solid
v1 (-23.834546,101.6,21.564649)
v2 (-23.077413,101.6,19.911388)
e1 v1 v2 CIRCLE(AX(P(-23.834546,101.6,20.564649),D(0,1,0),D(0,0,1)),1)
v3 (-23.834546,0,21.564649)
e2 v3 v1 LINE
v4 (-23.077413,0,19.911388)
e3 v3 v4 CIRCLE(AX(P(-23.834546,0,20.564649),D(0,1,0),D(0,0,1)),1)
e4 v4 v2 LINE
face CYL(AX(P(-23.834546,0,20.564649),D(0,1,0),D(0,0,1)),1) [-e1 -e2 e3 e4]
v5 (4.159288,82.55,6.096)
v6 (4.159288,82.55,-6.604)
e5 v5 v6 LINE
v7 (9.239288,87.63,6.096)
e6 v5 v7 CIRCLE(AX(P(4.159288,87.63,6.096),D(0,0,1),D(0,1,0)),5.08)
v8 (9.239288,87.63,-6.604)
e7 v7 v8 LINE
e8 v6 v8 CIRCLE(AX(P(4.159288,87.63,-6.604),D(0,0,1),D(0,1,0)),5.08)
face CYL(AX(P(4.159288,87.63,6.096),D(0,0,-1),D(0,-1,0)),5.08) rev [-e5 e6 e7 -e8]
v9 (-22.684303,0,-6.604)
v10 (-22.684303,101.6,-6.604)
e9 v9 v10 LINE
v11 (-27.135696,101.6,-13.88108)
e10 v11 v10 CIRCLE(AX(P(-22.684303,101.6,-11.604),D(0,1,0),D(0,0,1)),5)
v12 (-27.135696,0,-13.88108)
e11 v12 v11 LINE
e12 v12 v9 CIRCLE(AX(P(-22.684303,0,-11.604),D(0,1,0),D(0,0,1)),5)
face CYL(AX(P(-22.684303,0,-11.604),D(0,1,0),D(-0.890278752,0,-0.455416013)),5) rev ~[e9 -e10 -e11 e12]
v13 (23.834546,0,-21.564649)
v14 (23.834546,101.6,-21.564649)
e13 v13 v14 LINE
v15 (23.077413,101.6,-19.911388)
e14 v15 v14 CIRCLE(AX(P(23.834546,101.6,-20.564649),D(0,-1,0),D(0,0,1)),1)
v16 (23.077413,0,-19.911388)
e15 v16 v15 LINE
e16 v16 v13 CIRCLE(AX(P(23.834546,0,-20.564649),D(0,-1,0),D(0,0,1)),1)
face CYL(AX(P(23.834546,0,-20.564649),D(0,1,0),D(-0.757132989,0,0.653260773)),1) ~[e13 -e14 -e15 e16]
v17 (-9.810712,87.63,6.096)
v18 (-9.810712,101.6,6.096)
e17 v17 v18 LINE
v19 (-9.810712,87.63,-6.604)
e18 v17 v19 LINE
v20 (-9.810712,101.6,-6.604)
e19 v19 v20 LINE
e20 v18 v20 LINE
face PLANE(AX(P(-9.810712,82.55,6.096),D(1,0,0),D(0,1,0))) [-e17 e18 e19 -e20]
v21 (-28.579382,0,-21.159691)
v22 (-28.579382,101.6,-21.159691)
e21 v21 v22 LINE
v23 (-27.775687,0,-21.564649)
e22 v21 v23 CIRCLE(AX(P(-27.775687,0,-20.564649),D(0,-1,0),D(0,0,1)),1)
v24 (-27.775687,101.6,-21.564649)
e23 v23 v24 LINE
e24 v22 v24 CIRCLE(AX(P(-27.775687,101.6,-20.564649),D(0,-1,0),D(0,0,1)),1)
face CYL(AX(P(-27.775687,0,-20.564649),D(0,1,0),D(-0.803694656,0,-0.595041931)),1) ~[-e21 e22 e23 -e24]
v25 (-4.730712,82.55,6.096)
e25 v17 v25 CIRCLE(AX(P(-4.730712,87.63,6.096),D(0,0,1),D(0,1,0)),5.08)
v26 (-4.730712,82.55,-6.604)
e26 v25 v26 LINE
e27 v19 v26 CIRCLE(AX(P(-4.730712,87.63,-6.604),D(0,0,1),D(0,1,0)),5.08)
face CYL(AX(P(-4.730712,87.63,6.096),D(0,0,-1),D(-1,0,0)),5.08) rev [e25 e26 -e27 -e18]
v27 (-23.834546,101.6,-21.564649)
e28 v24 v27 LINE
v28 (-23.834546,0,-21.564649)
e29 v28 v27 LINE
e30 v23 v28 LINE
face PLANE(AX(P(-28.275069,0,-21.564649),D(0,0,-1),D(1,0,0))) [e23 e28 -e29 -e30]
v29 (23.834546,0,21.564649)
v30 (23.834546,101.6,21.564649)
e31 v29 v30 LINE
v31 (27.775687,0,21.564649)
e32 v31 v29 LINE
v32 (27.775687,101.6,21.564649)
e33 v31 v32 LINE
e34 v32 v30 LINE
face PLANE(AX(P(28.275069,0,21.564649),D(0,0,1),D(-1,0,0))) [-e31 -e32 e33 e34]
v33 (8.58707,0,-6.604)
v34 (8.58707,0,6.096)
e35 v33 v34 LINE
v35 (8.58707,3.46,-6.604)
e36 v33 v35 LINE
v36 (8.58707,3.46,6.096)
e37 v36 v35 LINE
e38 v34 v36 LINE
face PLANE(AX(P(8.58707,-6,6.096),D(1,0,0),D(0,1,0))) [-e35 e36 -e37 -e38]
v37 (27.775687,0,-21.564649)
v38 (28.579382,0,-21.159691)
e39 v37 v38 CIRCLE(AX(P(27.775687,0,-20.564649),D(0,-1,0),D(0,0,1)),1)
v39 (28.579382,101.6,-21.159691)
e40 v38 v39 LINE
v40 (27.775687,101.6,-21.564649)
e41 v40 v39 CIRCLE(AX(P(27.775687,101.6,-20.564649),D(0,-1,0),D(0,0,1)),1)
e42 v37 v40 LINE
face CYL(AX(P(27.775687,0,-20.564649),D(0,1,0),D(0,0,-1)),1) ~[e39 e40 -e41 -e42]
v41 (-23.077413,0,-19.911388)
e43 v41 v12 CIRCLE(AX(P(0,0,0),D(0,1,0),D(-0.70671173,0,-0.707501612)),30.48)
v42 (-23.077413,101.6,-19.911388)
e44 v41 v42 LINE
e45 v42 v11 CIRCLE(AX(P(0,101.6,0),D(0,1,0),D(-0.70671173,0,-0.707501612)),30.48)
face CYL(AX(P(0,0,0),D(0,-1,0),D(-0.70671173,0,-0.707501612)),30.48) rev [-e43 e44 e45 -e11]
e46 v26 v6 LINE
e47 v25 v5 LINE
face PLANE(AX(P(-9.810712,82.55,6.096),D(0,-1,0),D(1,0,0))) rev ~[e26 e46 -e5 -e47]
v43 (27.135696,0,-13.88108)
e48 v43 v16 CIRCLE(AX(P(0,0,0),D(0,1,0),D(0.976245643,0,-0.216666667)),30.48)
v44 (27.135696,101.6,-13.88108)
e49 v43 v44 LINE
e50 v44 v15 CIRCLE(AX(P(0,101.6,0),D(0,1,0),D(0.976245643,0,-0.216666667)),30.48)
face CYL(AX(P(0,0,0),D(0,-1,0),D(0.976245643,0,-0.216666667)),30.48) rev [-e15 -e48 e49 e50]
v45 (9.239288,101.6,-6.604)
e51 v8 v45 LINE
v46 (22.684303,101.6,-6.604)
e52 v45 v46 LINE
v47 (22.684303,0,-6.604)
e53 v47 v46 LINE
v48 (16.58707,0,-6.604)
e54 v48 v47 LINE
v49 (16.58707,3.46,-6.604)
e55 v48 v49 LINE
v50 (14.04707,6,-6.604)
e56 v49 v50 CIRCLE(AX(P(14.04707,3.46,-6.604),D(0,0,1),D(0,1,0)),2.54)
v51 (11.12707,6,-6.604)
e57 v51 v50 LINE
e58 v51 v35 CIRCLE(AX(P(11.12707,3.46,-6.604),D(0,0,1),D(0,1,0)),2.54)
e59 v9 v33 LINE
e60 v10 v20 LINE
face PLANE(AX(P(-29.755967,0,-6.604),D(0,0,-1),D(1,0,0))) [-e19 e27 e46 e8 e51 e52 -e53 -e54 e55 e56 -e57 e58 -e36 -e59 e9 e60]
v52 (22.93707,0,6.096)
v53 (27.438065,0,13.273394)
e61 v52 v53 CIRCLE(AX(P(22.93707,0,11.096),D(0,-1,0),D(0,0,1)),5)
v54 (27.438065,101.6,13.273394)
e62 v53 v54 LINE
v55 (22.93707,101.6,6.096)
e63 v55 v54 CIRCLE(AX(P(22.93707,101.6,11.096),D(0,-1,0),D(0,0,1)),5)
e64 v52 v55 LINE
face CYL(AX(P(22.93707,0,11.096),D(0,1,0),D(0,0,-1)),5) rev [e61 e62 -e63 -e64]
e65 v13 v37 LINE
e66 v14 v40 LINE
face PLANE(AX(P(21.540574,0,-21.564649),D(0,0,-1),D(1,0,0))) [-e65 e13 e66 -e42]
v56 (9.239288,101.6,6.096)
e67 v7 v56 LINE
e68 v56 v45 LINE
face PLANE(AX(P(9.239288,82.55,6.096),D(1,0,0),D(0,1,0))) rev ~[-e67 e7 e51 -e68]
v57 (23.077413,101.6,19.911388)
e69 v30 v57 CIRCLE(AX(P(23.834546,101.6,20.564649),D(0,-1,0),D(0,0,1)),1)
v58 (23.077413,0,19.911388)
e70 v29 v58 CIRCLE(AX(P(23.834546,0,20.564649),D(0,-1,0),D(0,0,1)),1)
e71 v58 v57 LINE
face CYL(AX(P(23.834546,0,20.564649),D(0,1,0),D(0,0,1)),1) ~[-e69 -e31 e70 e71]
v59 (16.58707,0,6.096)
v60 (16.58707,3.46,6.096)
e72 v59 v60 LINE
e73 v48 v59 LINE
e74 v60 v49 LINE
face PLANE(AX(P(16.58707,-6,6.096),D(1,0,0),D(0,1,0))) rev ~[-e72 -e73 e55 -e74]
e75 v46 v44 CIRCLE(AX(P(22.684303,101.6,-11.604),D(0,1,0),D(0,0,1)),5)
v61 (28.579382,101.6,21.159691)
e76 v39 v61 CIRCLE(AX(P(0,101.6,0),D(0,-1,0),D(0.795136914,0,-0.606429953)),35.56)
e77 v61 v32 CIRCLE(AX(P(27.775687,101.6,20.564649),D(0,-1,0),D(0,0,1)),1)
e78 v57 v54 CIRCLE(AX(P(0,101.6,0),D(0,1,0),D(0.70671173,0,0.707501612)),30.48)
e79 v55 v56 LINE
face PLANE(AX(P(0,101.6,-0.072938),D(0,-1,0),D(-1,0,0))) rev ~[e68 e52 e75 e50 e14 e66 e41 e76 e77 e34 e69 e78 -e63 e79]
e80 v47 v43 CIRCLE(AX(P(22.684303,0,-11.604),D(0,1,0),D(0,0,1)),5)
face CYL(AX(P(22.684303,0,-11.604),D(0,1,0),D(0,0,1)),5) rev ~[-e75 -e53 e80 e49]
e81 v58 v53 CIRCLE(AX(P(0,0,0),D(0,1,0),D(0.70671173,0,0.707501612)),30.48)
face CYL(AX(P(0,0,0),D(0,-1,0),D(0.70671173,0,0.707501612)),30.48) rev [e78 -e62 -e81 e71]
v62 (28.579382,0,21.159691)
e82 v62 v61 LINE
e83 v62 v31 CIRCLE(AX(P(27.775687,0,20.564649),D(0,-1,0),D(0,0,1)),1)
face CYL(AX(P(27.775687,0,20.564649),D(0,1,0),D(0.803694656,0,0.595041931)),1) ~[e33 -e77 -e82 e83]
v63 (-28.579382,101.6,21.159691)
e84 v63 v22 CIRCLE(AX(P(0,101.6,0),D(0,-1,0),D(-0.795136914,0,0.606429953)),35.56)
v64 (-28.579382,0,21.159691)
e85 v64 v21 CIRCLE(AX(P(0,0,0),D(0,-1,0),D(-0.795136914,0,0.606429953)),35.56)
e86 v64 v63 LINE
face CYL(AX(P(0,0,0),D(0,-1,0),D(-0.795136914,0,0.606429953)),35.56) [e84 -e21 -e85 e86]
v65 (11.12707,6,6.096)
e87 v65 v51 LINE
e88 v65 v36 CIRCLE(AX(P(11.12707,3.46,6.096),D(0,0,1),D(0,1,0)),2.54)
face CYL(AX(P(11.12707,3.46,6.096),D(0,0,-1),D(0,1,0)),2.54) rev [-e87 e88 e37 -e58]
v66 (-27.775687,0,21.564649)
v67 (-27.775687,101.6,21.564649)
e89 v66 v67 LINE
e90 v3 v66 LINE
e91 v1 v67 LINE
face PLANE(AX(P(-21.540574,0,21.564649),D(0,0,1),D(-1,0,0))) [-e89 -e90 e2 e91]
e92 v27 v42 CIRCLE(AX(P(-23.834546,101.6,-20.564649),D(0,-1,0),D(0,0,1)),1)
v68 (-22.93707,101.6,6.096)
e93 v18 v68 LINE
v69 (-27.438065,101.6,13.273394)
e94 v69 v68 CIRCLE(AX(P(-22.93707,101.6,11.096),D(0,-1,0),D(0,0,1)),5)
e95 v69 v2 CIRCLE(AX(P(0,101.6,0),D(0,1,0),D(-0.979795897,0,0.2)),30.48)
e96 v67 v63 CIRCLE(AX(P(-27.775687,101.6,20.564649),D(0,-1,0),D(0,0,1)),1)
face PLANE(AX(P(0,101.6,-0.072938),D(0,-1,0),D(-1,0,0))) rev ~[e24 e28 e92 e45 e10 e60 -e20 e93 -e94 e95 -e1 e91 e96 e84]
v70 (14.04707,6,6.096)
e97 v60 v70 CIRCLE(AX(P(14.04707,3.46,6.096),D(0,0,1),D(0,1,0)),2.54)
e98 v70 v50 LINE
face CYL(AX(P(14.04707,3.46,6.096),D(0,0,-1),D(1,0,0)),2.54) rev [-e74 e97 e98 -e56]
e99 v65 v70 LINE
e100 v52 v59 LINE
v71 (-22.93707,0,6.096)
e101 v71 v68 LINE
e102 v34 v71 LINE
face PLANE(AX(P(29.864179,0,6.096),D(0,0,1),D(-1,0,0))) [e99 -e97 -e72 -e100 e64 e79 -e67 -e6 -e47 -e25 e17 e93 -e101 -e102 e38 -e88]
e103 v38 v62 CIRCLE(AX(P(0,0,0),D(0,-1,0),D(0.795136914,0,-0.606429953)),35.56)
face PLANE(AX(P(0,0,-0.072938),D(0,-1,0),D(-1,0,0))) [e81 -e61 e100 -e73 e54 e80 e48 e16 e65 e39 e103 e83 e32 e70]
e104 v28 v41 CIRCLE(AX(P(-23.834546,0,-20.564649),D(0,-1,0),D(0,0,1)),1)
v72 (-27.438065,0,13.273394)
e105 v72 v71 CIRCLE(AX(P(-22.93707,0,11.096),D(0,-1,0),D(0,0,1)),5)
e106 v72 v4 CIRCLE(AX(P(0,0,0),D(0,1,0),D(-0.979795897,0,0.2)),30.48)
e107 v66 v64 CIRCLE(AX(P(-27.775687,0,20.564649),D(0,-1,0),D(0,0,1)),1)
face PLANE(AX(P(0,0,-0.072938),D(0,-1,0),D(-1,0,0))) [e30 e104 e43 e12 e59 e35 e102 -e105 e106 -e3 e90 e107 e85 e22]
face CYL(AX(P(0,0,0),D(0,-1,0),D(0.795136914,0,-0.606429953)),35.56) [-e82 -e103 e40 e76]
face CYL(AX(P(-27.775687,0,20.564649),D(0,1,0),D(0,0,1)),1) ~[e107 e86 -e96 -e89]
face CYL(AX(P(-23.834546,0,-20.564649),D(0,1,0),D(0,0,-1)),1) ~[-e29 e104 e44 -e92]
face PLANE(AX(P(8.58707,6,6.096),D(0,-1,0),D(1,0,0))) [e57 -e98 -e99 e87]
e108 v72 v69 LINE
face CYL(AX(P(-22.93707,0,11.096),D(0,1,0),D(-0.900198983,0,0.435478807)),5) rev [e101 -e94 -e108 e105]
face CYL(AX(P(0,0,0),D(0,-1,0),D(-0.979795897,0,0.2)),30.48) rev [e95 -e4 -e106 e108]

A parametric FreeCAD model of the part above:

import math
import FreeCAD as App
import Part
import Sketcher
Q = App.Units.Quantity


def edges_at(feature, points):
    """Names of the edges that pass closest to the given points."""
    edges = feature.Shape.Edges
    near = lambda p: min(range(len(edges)), key=lambda i: edges[i].distToShape(Part.Vertex(*p))[0])
    return sorted({f"Edge{near(p) + 1}" for p in points})


def add_polygon(sketch, points):
    """Adds a closed chain of lines whose ends are joined by coincident constraints."""
    first, n = sketch.GeometryCount, len(points)
    for a, b in zip(points, points[1:] + points[:1]):
        sketch.addGeometry(Part.LineSegment(App.Vector(*a, 0), App.Vector(*b, 0)), False)
    for i in range(n):
        sketch.addConstraint(Sketcher.Constraint("Coincident", first + i, 2, first + (i + 1) % n, 1))

doc = App.newDocument("Part")
params = doc.addObject("Spreadsheet::Sheet", "Params")
for row, (alias, value) in enumerate([
    ("sketch1_radius", "1.2 in"),
    ("sketch1_radius2", "1.4 in"),
    ("pad1_length", "4 in"),
    ("fillet_radius", "1 mm"),
    ("fillet2_radius", "5 mm"),
    ("sketch2_diameter", "0.25 in"),
    ("pocket1_length", "0.75 in"),
    ("sketch3_width", "0.75 in"),
    ("pocket2_length", "0.5 in"),
    ("fillet3_radius", "0.2 in"),
    ("pocket3_length", "0.5 in"),
    ("fillet4_radius", "0.1 in"),
], start=1):
    params.set(f"A{row}", alias)
    params.set(f"B{row}", "=" + value)
    params.setAlias(f"B{row}", alias)

body = doc.addObject("PartDesign::Body", "Body")

# Sketch on XZ plane
sketch1 = doc.addObject("Sketcher::SketchObject", "Sketch")
body.addObject(sketch1)
sketch1.AttachmentSupport = (doc.XZ_Plane, [""])
sketch1.MapMode = "FlatFace"
sketch1.addGeometry(Part.LineSegment(App.Vector(-28, 22, 0), App.Vector(-22, 22, 0)), False)
sketch1.addGeometry(Part.ArcOfCircle(Part.Circle(App.Vector(0, 0, 0), App.Vector(0, 0, 1), 30), math.radians(135), math.radians(168)), False)
sketch1.addGeometry(Part.LineSegment(App.Vector(-30, 6, 0), App.Vector(30, 6, 0)), False)
sketch1.addGeometry(Part.ArcOfCircle(Part.Circle(App.Vector(0, 0, 0), App.Vector(0, 0, 1), 30), math.radians(12), math.radians(45)), False)
sketch1.addGeometry(Part.LineSegment(App.Vector(22, 22, 0), App.Vector(28, 22, 0)), False)
sketch1.addGeometry(Part.ArcOfCircle(Part.Circle(App.Vector(0, 0, 0), App.Vector(0, 0, 1), 36), math.radians(-37), math.radians(37)), False)
sketch1.addGeometry(Part.LineSegment(App.Vector(28, -22, 0), App.Vector(22, -22, 0)), False)
sketch1.addGeometry(Part.ArcOfCircle(Part.Circle(App.Vector(0, 0, 0), App.Vector(0, 0, 1), 30), math.radians(-45), math.radians(-13)), False)
sketch1.addGeometry(Part.LineSegment(App.Vector(30, -7, 0), App.Vector(-30, -7, 0)), False)
sketch1.addGeometry(Part.ArcOfCircle(Part.Circle(App.Vector(0, 0, 0), App.Vector(0, 0, 1), 30), math.radians(-167), math.radians(-135)), False)
sketch1.addGeometry(Part.LineSegment(App.Vector(-22, -22, 0), App.Vector(-28, -22, 0)), False)
sketch1.addGeometry(Part.ArcOfCircle(Part.Circle(App.Vector(0, 0, 0), App.Vector(0, 0, 1), 36), math.radians(143), math.radians(217)), False)
sketch1.addConstraint(Sketcher.Constraint("Coincident", 0, 2, 1, 1))
sketch1.addConstraint(Sketcher.Constraint("Coincident", 1, 2, 2, 1))
sketch1.addConstraint(Sketcher.Constraint("Coincident", 2, 2, 3, 1))
sketch1.addConstraint(Sketcher.Constraint("Coincident", 3, 2, 4, 1))
sketch1.addConstraint(Sketcher.Constraint("Coincident", 4, 2, 5, 2))
sketch1.addConstraint(Sketcher.Constraint("Coincident", 5, 1, 6, 1))
sketch1.addConstraint(Sketcher.Constraint("Coincident", 6, 2, 7, 1))
sketch1.addConstraint(Sketcher.Constraint("Coincident", 7, 2, 8, 1))
sketch1.addConstraint(Sketcher.Constraint("Coincident", 8, 2, 9, 1))
sketch1.addConstraint(Sketcher.Constraint("Coincident", 9, 2, 10, 1))
sketch1.addConstraint(Sketcher.Constraint("Coincident", 10, 2, 11, 2))
sketch1.addConstraint(Sketcher.Constraint("Coincident", 11, 1, 0, 1))
sketch1.addConstraint(Sketcher.Constraint("Horizontal", 0))
sketch1.addConstraint(Sketcher.Constraint("Horizontal", 2))
sketch1.addConstraint(Sketcher.Constraint("Horizontal", 4))
sketch1.addConstraint(Sketcher.Constraint("Horizontal", 6))
sketch1.addConstraint(Sketcher.Constraint("Horizontal", 8))
sketch1.addConstraint(Sketcher.Constraint("Horizontal", 10))
sketch1.addConstraint(Sketcher.Constraint("Coincident", 1, 3, -1, 1))
sketch1.addConstraint(Sketcher.Constraint("Coincident", 3, 3, -1, 1))
sketch1.addConstraint(Sketcher.Constraint("Coincident", 5, 3, -1, 1))
sketch1.addConstraint(Sketcher.Constraint("Coincident", 7, 3, -1, 1))
sketch1.addConstraint(Sketcher.Constraint("Coincident", 9, 3, -1, 1))
sketch1.addConstraint(Sketcher.Constraint("Coincident", 11, 3, -1, 1))
sketch1.addConstraint(Sketcher.Constraint("Equal", 1, 3))
sketch1.addConstraint(Sketcher.Constraint("Equal", 3, 7))
sketch1.addConstraint(Sketcher.Constraint("Equal", 7, 9))
sketch1.addConstraint(Sketcher.Constraint("Equal", 5, 11))
sketch1.addConstraint(Sketcher.Constraint("Horizontal", 0, 2, 3, 2))
sketch1.addConstraint(Sketcher.Constraint("Horizontal", 6, 2, 9, 2))
sketch1.addConstraint(Sketcher.Constraint("Vertical", 4, 2, 5, 1))
sketch1.addConstraint(Sketcher.Constraint("Radius", 1, Q("1.2 in")))
sketch1.addConstraint(Sketcher.Constraint("Radius", 5, Q("1.4 in")))
sketch1.addConstraint(Sketcher.Constraint("DistanceY", 7, 2, 2, 2, Q("0.5 in")))
sketch1.addConstraint(Sketcher.Constraint("DistanceY", -1, 1, 1, 2, Q("0.24 in")))
sketch1.addConstraint(Sketcher.Constraint("DistanceX", 5, 1, 7, 2, Q("1.480899 mm")))
sketch1.setExpression("Constraints[31]", "Params.sketch1_radius")
sketch1.setExpression("Constraints[32]", "Params.sketch1_radius2")
pad1 = doc.addObject("PartDesign::Pad", "Pad")
body.addObject(pad1)
pad1.Profile = sketch1
pad1.setExpression("Length", "Params.pad1_length")
pad1.Reversed = True
doc.recompute()

fillet = doc.addObject("PartDesign::Fillet", "Fillet")
body.addObject(fillet)
fillet.Base = (pad1, edges_at(pad1, [
    (21.541, 50.8, -21.565),
    (28.275, 50.8, -21.565),
    (28.275, 50.8, 21.565),
    (21.541, 50.8, 21.565),
    (-21.541, 50.8, 21.565),
    (-28.275, 50.8, 21.565),
    (-28.275, 50.8, -21.565),
    (-21.541, 50.8, -21.565),
]))
fillet.setExpression("Radius", "Params.fillet_radius")
doc.recompute()

fillet2 = doc.addObject("PartDesign::Fillet", "Fillet001")
body.addObject(fillet2)
fillet2.Base = (fillet, edges_at(fillet, [
    (29.864, 50.8, 6.096),
    (-29.864, 50.8, 6.096),
    (-29.756, 50.8, -6.604),
    (29.756, 50.8, -6.604),
]))
fillet2.setExpression("Radius", "Params.fillet2_radius")

# Sketch on XZ plane
sketch2 = doc.addObject("Sketcher::SketchObject", "Sketch001")
body.addObject(sketch2)
sketch2.AttachmentSupport = (doc.XZ_Plane, [""])
sketch2.MapMode = "FlatFace"
sketch2.AttachmentOffset = App.Placement(App.Vector(0, 0, -4 * 25.4), App.Rotation())
sketch2.addGeometry(Part.Circle(App.Vector(0, 0, 0), App.Vector(0, 0, 1), 3.2), False)
sketch2.addConstraint(Sketcher.Constraint("Coincident", 0, 3, -1, 1))
sketch2.addConstraint(Sketcher.Constraint("Diameter", 0, Q("0.25 in")))
sketch2.setExpression("Constraints[1]", "Params.sketch2_diameter")
pocket1 = doc.addObject("PartDesign::Pocket", "Pocket")
body.addObject(pocket1)
pocket1.Profile = sketch2
pocket1.setExpression("Length", "Params.pocket1_length")
pocket1.Reversed = True

# Sketch on XY plane
sketch3 = doc.addObject("Sketcher::SketchObject", "Sketch002")
body.addObject(sketch3)
sketch3.AttachmentSupport = (doc.XY_Plane, [""])
sketch3.MapMode = "FlatFace"
sketch3.AttachmentOffset = App.Placement(App.Vector(0, 0, 0.24 * 25.4), App.Rotation())
add_polygon(sketch3, [(-10, 102), (-10, 83), (9, 83), (9, 102)])  # lines 0-3
sketch3.addConstraint(Sketcher.Constraint("Vertical", 0))
sketch3.addConstraint(Sketcher.Constraint("Horizontal", 1))
sketch3.addConstraint(Sketcher.Constraint("Vertical", 2))
sketch3.addConstraint(Sketcher.Constraint("Horizontal", 3))
sketch3.addConstraint(Sketcher.Constraint("Equal", 3, 0))
sketch3.addConstraint(Sketcher.Constraint("DistanceY", -1, 1, 2, 2, Q("4 in")))
sketch3.addConstraint(Sketcher.Constraint("DistanceX", 1, 1, 1, 2, Q("0.75 in")))
sketch3.addConstraint(Sketcher.Constraint("DistanceX", 0, 2, -1, 1, Q("9.810712 mm")))
sketch3.setExpression("Constraints[10]", "Params.sketch3_width")
pocket2 = doc.addObject("PartDesign::Pocket", "Pocket001")
body.addObject(pocket2)
pocket2.Profile = sketch3
pocket2.setExpression("Length", "Params.pocket2_length")
doc.recompute()

fillet3 = doc.addObject("PartDesign::Fillet", "Fillet002")
body.addObject(fillet3)
fillet3.Base = (pocket2, edges_at(pocket2, [(9.239, 82.55, -0.254), (-9.811, 82.55, -0.254)]))
fillet3.setExpression("Radius", "Params.fillet3_radius")

# Sketch on XY plane
sketch4 = doc.addObject("Sketcher::SketchObject", "Sketch003")
body.addObject(sketch4)
sketch4.AttachmentSupport = (doc.XY_Plane, [""])
sketch4.MapMode = "FlatFace"
sketch4.AttachmentOffset = App.Placement(App.Vector(0, 0, 0.24 * 25.4), App.Rotation())
add_polygon(sketch4, [(9, 6), (9, -6), (17, -6), (17, 6)])  # lines 0-3
sketch4.addConstraint(Sketcher.Constraint("Vertical", 0))
sketch4.addConstraint(Sketcher.Constraint("Horizontal", 1))
sketch4.addConstraint(Sketcher.Constraint("Vertical", 2))
sketch4.addConstraint(Sketcher.Constraint("Horizontal", 3))
sketch4.addConstraint(Sketcher.Constraint("DistanceX", 1, 1, 1, 2, Q("8 mm")))
sketch4.addConstraint(Sketcher.Constraint("DistanceY", 0, 2, 0, 1, Q("12 mm")))
sketch4.addConstraint(Sketcher.Constraint("DistanceY", 0, 2, -1, 1, Q("6 mm")))
sketch4.addConstraint(Sketcher.Constraint("DistanceX", -1, 1, 0, 2, Q("8.58707 mm")))
pocket3 = doc.addObject("PartDesign::Pocket", "Pocket002")
body.addObject(pocket3)
pocket3.Profile = sketch4
pocket3.setExpression("Length", "Params.pocket3_length")
doc.recompute()

fillet4 = doc.addObject("PartDesign::Fillet", "Fillet003")
body.addObject(fillet4)
fillet4.Base = (pocket3, edges_at(pocket3, [(16.587, 6, -0.254), (8.587, 6, -0.254)]))
fillet4.setExpression("Radius", "Params.fillet4_radius")

doc.recompute()
